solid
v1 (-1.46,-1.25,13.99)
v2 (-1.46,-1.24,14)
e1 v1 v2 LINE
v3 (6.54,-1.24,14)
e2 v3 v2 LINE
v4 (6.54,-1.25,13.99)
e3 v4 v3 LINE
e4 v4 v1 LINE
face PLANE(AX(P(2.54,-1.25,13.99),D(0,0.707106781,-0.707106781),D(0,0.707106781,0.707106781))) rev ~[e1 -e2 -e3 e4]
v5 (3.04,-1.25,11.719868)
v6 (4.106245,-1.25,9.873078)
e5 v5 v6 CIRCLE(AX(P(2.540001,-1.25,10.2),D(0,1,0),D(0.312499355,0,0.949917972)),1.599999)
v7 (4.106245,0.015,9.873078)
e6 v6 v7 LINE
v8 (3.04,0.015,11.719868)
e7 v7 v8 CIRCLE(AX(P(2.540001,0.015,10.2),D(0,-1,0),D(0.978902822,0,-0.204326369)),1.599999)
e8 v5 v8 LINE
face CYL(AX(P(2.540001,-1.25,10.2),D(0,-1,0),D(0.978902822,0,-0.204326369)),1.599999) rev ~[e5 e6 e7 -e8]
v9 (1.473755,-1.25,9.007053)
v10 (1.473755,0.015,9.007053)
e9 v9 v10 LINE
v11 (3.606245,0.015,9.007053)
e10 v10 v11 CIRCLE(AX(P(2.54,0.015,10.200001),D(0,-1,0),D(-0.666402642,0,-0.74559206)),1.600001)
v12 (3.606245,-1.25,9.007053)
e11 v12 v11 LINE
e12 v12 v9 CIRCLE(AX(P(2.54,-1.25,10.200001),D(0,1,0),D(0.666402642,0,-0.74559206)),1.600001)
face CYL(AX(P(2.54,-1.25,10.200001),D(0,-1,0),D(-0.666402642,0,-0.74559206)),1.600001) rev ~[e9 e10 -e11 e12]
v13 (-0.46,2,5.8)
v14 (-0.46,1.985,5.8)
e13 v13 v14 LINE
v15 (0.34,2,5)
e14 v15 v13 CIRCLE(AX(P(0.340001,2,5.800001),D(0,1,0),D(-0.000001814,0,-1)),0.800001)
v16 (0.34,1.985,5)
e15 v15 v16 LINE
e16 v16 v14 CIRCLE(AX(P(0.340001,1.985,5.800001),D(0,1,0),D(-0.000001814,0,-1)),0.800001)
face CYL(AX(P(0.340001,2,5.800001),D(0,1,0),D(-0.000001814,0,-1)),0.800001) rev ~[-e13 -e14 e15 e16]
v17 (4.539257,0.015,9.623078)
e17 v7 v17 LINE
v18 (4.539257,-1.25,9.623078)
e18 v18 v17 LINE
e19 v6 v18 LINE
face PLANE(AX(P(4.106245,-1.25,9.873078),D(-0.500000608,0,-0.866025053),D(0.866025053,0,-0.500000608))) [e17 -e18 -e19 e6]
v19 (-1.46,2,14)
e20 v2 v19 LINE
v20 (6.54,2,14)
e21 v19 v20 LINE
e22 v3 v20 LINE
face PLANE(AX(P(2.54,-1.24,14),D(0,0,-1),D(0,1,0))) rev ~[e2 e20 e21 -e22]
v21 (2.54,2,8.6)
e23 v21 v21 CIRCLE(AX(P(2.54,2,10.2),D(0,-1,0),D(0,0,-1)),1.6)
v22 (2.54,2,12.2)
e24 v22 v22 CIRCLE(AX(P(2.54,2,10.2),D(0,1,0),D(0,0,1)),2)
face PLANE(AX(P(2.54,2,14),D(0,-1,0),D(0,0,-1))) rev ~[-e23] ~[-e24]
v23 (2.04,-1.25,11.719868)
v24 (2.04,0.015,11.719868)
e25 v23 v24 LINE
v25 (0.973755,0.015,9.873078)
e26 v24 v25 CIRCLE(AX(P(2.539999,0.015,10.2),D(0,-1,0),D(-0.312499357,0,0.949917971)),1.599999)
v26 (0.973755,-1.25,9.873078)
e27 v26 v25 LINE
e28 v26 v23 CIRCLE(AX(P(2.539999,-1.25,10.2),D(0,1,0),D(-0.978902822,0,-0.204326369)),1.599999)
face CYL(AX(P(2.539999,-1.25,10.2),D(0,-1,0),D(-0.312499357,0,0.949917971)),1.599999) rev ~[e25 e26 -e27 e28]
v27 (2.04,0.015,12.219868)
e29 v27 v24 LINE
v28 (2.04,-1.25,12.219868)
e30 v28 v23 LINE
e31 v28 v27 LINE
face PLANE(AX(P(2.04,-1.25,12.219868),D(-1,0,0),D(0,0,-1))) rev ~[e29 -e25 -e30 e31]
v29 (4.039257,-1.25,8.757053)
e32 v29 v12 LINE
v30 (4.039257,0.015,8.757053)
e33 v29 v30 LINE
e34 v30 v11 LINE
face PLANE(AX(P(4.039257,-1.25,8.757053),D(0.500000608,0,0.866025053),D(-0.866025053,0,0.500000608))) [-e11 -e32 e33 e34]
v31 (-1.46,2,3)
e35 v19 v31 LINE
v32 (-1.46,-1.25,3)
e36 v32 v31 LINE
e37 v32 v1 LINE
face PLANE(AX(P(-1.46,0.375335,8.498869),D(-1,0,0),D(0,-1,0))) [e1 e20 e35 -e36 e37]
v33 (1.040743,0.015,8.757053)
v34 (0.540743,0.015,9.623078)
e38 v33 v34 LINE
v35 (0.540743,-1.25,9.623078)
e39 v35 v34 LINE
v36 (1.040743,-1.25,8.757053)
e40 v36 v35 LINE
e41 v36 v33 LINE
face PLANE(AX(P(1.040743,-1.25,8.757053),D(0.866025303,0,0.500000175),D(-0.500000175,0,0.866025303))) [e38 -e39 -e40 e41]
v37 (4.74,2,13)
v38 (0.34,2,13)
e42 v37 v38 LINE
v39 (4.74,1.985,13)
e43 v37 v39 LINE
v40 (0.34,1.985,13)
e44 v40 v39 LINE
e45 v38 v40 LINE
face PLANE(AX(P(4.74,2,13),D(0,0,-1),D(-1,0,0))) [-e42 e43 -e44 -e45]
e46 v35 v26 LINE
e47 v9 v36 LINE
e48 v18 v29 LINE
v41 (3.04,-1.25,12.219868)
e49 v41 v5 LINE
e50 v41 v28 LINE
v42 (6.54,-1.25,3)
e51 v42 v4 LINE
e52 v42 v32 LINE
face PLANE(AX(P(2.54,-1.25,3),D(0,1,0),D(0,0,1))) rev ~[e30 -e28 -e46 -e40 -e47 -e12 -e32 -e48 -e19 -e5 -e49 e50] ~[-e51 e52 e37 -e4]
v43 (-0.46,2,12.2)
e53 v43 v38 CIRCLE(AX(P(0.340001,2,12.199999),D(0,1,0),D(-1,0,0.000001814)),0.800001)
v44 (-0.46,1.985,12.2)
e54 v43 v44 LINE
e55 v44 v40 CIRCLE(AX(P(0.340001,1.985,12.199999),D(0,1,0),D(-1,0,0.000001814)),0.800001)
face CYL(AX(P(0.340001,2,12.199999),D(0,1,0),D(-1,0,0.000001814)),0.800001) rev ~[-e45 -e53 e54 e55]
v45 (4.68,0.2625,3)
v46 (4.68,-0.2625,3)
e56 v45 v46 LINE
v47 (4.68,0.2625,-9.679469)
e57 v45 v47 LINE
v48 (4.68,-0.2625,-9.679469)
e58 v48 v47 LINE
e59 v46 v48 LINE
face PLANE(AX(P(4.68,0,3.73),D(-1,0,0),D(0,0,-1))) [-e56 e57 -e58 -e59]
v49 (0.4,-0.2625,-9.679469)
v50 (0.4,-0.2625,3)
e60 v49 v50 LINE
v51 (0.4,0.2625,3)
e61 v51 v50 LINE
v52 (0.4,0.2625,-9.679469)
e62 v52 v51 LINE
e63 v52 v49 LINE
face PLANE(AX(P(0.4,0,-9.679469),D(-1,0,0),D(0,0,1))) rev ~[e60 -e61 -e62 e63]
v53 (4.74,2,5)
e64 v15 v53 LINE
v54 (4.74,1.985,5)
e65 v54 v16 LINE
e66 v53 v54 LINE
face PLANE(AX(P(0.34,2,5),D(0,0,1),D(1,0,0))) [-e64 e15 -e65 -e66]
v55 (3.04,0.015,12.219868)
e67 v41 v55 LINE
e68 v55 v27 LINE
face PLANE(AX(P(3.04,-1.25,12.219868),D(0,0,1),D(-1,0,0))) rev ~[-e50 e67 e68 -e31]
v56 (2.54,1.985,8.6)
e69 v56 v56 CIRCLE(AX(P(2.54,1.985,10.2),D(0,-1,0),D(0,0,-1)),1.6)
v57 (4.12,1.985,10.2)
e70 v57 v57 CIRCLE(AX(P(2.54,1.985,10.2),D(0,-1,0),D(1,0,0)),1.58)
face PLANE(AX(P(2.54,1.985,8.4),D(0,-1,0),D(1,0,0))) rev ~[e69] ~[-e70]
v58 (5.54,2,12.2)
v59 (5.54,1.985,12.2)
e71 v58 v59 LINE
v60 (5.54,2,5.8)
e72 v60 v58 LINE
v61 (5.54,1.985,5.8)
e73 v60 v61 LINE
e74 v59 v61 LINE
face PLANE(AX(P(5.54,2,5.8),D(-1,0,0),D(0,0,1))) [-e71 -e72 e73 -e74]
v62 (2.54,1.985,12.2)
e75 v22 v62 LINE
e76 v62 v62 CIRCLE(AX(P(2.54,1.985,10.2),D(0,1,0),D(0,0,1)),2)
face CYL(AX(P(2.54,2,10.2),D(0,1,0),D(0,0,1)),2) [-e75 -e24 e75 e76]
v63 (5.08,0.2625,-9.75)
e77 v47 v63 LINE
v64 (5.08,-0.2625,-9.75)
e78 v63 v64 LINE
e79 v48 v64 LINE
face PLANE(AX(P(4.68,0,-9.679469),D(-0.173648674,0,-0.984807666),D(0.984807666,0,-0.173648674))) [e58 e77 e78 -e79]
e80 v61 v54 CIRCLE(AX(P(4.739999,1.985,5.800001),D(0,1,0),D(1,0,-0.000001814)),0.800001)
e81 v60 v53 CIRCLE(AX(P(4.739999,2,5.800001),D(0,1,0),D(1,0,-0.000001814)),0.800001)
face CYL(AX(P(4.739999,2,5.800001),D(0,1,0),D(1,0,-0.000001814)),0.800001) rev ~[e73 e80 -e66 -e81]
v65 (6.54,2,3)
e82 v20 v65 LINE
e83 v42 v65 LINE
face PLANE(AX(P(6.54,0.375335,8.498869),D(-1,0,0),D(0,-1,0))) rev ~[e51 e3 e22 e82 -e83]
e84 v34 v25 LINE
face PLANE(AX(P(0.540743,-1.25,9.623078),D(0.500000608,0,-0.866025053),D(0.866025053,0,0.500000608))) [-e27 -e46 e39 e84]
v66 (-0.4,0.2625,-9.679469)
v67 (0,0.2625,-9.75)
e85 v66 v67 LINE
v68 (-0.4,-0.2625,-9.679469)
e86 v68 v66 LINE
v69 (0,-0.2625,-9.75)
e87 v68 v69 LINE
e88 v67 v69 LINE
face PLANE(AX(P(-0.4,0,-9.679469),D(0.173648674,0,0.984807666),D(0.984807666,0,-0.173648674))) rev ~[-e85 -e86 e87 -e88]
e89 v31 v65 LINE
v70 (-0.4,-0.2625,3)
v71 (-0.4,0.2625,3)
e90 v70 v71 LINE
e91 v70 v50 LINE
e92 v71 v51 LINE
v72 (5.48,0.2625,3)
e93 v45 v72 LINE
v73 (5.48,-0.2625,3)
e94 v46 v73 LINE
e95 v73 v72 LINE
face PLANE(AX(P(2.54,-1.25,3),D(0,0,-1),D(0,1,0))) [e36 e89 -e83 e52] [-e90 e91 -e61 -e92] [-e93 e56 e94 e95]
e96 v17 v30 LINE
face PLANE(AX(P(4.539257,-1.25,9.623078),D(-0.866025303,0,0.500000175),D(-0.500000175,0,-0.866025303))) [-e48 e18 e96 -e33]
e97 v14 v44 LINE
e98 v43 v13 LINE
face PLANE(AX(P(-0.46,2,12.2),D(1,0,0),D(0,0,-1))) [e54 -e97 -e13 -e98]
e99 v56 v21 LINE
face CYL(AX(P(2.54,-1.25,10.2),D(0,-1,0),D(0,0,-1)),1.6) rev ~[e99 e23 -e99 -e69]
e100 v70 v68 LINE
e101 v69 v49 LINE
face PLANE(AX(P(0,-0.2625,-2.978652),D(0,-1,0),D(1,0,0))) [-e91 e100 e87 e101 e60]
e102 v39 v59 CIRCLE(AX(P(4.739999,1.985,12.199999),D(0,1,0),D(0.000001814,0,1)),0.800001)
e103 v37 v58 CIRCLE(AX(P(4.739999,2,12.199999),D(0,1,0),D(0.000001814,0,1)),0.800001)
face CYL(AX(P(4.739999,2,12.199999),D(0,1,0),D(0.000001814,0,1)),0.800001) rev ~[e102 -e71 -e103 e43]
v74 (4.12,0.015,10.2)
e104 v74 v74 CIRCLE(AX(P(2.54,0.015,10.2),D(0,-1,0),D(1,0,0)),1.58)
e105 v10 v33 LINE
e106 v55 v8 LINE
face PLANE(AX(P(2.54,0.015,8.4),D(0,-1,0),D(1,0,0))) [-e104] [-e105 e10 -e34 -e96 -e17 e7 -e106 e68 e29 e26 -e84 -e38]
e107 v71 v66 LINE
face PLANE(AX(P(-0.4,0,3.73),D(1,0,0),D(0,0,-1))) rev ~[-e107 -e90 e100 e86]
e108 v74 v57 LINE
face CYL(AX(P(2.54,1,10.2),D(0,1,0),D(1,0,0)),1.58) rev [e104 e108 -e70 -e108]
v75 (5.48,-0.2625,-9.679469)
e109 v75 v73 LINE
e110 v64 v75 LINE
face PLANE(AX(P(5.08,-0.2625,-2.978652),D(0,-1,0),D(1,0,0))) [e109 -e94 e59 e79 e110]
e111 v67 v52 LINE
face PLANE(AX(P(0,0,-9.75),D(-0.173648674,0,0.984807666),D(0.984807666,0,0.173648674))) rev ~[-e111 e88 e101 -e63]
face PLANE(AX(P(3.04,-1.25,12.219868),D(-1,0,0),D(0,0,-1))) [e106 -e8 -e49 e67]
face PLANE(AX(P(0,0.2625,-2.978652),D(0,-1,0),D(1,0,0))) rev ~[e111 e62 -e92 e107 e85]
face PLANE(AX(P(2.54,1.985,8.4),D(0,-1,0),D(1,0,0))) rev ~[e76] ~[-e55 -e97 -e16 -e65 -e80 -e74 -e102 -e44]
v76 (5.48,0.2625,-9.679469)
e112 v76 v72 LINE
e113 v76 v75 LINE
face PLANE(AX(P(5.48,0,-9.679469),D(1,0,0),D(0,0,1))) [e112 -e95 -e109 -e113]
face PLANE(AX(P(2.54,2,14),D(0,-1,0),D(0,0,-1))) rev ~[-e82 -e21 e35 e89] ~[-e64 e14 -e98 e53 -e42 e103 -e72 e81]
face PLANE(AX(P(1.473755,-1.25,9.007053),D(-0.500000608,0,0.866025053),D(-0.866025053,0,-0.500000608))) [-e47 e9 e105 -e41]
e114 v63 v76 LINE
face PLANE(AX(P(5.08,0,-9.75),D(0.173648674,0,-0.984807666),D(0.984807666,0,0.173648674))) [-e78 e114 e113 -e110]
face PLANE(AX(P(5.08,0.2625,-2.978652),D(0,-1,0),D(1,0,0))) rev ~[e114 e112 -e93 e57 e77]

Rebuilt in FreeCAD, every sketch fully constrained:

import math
import FreeCAD as App
import Part
import Sketcher

V = App.Vector
Q = App.Units.Quantity


def add_polygon(sketch, points):
    """Adds a closed chain of lines whose ends are joined by coincident constraints."""
    first, n = sketch.GeometryCount, len(points)
    for a, b in zip(points, points[1:] + points[:1]):
        sketch.addGeometry(Part.LineSegment(App.Vector(*a, 0), App.Vector(*b, 0)), False)
    for i in range(n):
        sketch.addConstraint(Sketcher.Constraint("Coincident", first + i, 2, first + (i + 1) % n, 1))

doc = App.newDocument("Part")
body = doc.addObject("PartDesign::Body", "Body")

# Sketch on XZ plane
sketch1 = body.newObject("Sketcher::SketchObject", "Sketch")
sketch1.AttachmentSupport = (doc.getObject("XZ_Plane"), [""])
sketch1.MapMode = "FlatFace"
sketch1.AttachmentOffset = App.Placement(V(0, 0, -1), App.Rotation())
add_polygon(sketch1, [(-1.2, 13.6), (-1.2, 3.2), (6.2, 3.2), (6.2, 13.6)])  # lines 0-3
sketch1.addGeometry(Part.Circle(V(2.5, 10.2, 0), V(0, 0, 1), 1.6), False)  # 4
sketch1.addConstraint(Sketcher.Constraint("Vertical", 0))
sketch1.addConstraint(Sketcher.Constraint("Horizontal", 1))
sketch1.addConstraint(Sketcher.Constraint("Vertical", 2))
sketch1.addConstraint(Sketcher.Constraint("Horizontal", 3))
sketch1.addConstraint(Sketcher.Constraint("Diameter", 4, 3.16))
sketch1.addConstraint(Sketcher.Constraint("DistanceX", 1, 1, 1, 2, 7.4))
sketch1.addConstraint(Sketcher.Constraint("DistanceY", 0, 2, 0, 1, 10.4))
sketch1.addConstraint(Sketcher.Constraint("DistanceY", 0, 2, 4, 3, 7.0))
sketch1.addConstraint(Sketcher.Constraint("DistanceY", -1, 1, 4, 3, 10.2))
sketch1.addConstraint(Sketcher.Constraint("DistanceX", 0, 2, 4, 3, 3.7))
sketch1.addConstraint(Sketcher.Constraint("DistanceX", -1, 1, 4, 3, 2.54))
pad1 = body.newObject("PartDesign::Pad", "Pad")
pad1.Profile = sketch1
pad1.Length = 1.97
pad1.Midplane = True
body2 = doc.addObject("PartDesign::Body", "Body001")

# Sketch on YZ plane
sketch2 = body2.newObject("Sketcher::SketchObject", "Sketch001")
sketch2.AttachmentSupport = (doc.getObject("YZ_Plane001"), [""])
sketch2.MapMode = "FlatFace"
sketch2.AttachmentOffset = App.Placement(V(0, 0, 2.54), App.Rotation())
add_polygon(sketch2, [(-1.25, 3), (2, 3), (2, 14), (-1.24, 14), (-1.25, 13.99)])  # lines 0-4
sketch2.addConstraint(Sketcher.Constraint("Horizontal", 0))
sketch2.addConstraint(Sketcher.Constraint("Vertical", 1))
sketch2.addConstraint(Sketcher.Constraint("Horizontal", 2))
sketch2.addConstraint(Sketcher.Constraint("Vertical", 4))
sketch2.addConstraint(Sketcher.Constraint("DistanceY", 1, 1, 1, 2, 11.0))
sketch2.addConstraint(Sketcher.Constraint("Angle", 3, Q("-135 deg")))
sketch2.addConstraint(Sketcher.Constraint("DistanceX", -1, 1, 0, 2, 2.0))
sketch2.addConstraint(Sketcher.Constraint("DistanceY", -1, 1, 0, 2, 3.0))
sketch2.addConstraint(Sketcher.Constraint("DistanceX", 0, 1, 0, 2, 3.25))
sketch2.addConstraint(Sketcher.Constraint("DistanceX", 2, 2, 2, 1, 3.24))
pad2 = body2.newObject("PartDesign::Pad", "Pad001")
pad2.Profile = sketch2
pad2.Length = 8
pad2.Midplane = True

# Sketch on XZ plane
sketch3 = body2.newObject("Sketcher::SketchObject", "Sketch002")
sketch3.AttachmentSupport = (doc.getObject("XZ_Plane001"), [""])
sketch3.MapMode = "FlatFace"
sketch3.AttachmentOffset = App.Placement(V(0, 0, 1.25), App.Rotation())
sketch3.addGeometry(Part.LineSegment(V(3.04, 12.22, 0), V(2.04, 12.22, 0)), False)
sketch3.addGeometry(Part.LineSegment(V(2.04, 12.22, 0), V(2.04, 11.72, 0)), False)
sketch3.addGeometry(Part.ArcOfCircle(Part.Circle(V(2.54, 10.2, 0), V(0, 0, 1), 1.6), math.radians(108), math.radians(192)), False)
sketch3.addGeometry(Part.LineSegment(V(0.97, 9.87, 0), V(0.54, 9.62, 0)), False)
sketch3.addGeometry(Part.LineSegment(V(0.54, 9.62, 0), V(1.04, 8.76, 0)), False)
sketch3.addGeometry(Part.LineSegment(V(1.04, 8.76, 0), V(1.47, 9.01, 0)), False)
sketch3.addGeometry(Part.ArcOfCircle(Part.Circle(V(2.54, 10.2, 0), V(0, 0, 1), 1.6), math.radians(-132), math.radians(-48)), False)
sketch3.addGeometry(Part.LineSegment(V(3.61, 9.01, 0), V(4.04, 8.76, 0)), False)
sketch3.addGeometry(Part.LineSegment(V(4.04, 8.76, 0), V(4.54, 9.62, 0)), False)
sketch3.addGeometry(Part.LineSegment(V(4.54, 9.62, 0), V(4.11, 9.87, 0)), False)
sketch3.addGeometry(Part.ArcOfCircle(Part.Circle(V(2.54, 10.2, 0), V(0, 0, 1), 1.6), math.radians(-12), math.radians(72)), False)
sketch3.addGeometry(Part.LineSegment(V(3.04, 11.72, 0), V(3.04, 12.22, 0)), False)
sketch3.addConstraint(Sketcher.Constraint("Coincident", 0, 2, 1, 1))
sketch3.addConstraint(Sketcher.Constraint("Coincident", 1, 2, 2, 1))
sketch3.addConstraint(Sketcher.Constraint("Coincident", 2, 2, 3, 1))
sketch3.addConstraint(Sketcher.Constraint("Coincident", 3, 2, 4, 1))
sketch3.addConstraint(Sketcher.Constraint("Coincident", 4, 2, 5, 1))
sketch3.addConstraint(Sketcher.Constraint("Coincident", 5, 2, 6, 1))
sketch3.addConstraint(Sketcher.Constraint("Coincident", 6, 2, 7, 1))
sketch3.addConstraint(Sketcher.Constraint("Coincident", 7, 2, 8, 1))
sketch3.addConstraint(Sketcher.Constraint("Coincident", 8, 2, 9, 1))
sketch3.addConstraint(Sketcher.Constraint("Coincident", 9, 2, 10, 1))
sketch3.addConstraint(Sketcher.Constraint("Coincident", 10, 2, 11, 1))
sketch3.addConstraint(Sketcher.Constraint("Coincident", 11, 2, 0, 1))
sketch3.addConstraint(Sketcher.Constraint("Horizontal", 0))
sketch3.addConstraint(Sketcher.Constraint("Vertical", 1))
sketch3.addConstraint(Sketcher.Constraint("Vertical", 11))
sketch3.addConstraint(Sketcher.Constraint("Coincident", 6, 3, 2, 3))
sketch3.addConstraint(Sketcher.Constraint("Coincident", 10, 3, 2, 3))
sketch3.addConstraint(Sketcher.Constraint("Equal", 2, 6))
sketch3.addConstraint(Sketcher.Constraint("Equal", 6, 10))
sketch3.addConstraint(Sketcher.Constraint("Perpendicular", 3, 4))
sketch3.addConstraint(Sketcher.Constraint("Perpendicular", 4, 5))
sketch3.addConstraint(Sketcher.Constraint("Perpendicular", 7, 8))
sketch3.addConstraint(Sketcher.Constraint("Perpendicular", 8, 9))
sketch3.addConstraint(Sketcher.Constraint("Horizontal", 5, 2, 6, 2))
sketch3.addConstraint(Sketcher.Constraint("Horizontal", 4, 2, 7, 2))
sketch3.addConstraint(Sketcher.Constraint("Horizontal", 3, 2, 8, 2))
sketch3.addConstraint(Sketcher.Constraint("Horizontal", 2, 2, 9, 2))
sketch3.addConstraint(Sketcher.Constraint("Horizontal", 1, 2, 10, 2))
sketch3.addConstraint(Sketcher.Constraint("Equal", 3, 5))
sketch3.addConstraint(Sketcher.Constraint("Radius", 2, 1.599999))
sketch3.addConstraint(Sketcher.Constraint("DistanceX", 0, 2, 0, 1, 1.0))
sketch3.addConstraint(Sketcher.Constraint("Angle", 4, Q("-59.999988 deg")))
sketch3.addConstraint(Sketcher.Constraint("Distance", 4, 1.0))
sketch3.addConstraint(Sketcher.Constraint("DistanceY", 1, 2, 1, 1, 0.5))
sketch3.addConstraint(Sketcher.Constraint("Distance", 3, 0.499999))
sketch3.addConstraint(Sketcher.Constraint("DistanceY", -1, 1, 2, 3, 10.2))
sketch3.addConstraint(Sketcher.Constraint("DistanceX", -1, 1, 2, 3, 2.539999))
pocket1 = body2.newObject("PartDesign::Pocket", "Pocket")
pocket1.Profile = sketch3
pocket1.Length = 1.35

# Sketch on XZ plane
sketch4 = body2.newObject("Sketcher::SketchObject", "Sketch003")
sketch4.AttachmentSupport = (doc.getObject("XZ_Plane001"), [""])
sketch4.MapMode = "FlatFace"
sketch4.AttachmentOffset = App.Placement(V(0, 0, 1.25), App.Rotation())
sketch4.addGeometry(Part.Circle(V(2.5, 10.2, 0), V(0, 0, 1), 1.6), False)
sketch4.addConstraint(Sketcher.Constraint("Diameter", 0, 3.2))
sketch4.addConstraint(Sketcher.Constraint("DistanceY", -1, 1, 0, 3, 10.2))
sketch4.addConstraint(Sketcher.Constraint("DistanceX", -1, 1, 0, 3, 2.54))
pocket2 = body2.newObject("PartDesign::Pocket", "Pocket001")
pocket2.Profile = sketch4
pocket2.Type = "ThroughAll"

# Sketch on XZ plane
sketch5 = body2.newObject("Sketcher::SketchObject", "Sketch004")
sketch5.AttachmentSupport = (doc.getObject("XZ_Plane001"), [""])
sketch5.MapMode = "FlatFace"
sketch5.AttachmentOffset = App.Placement(V(0, 0, -2), App.Rotation())
sketch5.addGeometry(Part.LineSegment(V(5.5, 12.2, 0), V(5.5, 5.8, 0)), False)
sketch5.addGeometry(Part.ArcOfCircle(Part.Circle(V(4.7, 5.8, 0), V(0, 0, 1), 0.8), math.radians(-90), math.radians(0)), False)
sketch5.addGeometry(Part.LineSegment(V(4.7, 5, 0), V(0.3, 5, 0)), False)
sketch5.addGeometry(Part.ArcOfCircle(Part.Circle(V(0.3, 5.8, 0), V(0, 0, 1), 0.8), math.radians(-180), math.radians(-90)), False)
sketch5.addGeometry(Part.LineSegment(V(-0.5, 5.8, 0), V(-0.5, 12.2, 0)), False)
sketch5.addGeometry(Part.ArcOfCircle(Part.Circle(V(0.3, 12.2, 0), V(0, 0, 1), 0.8), math.radians(90), math.radians(180)), False)
sketch5.addGeometry(Part.LineSegment(V(0.3, 13, 0), V(4.7, 13, 0)), False)
sketch5.addGeometry(Part.ArcOfCircle(Part.Circle(V(4.7, 12.2, 0), V(0, 0, 1), 0.8), math.radians(0), math.radians(90)), False)
sketch5.addGeometry(Part.Circle(V(2.5, 10.2, 0), V(0, 0, 1), 2), False)
sketch5.addConstraint(Sketcher.Constraint("Tangent", 0, 2, 1, 2))
sketch5.addConstraint(Sketcher.Constraint("Tangent", 1, 1, 2, 1))
sketch5.addConstraint(Sketcher.Constraint("Tangent", 2, 2, 3, 2))
sketch5.addConstraint(Sketcher.Constraint("Tangent", 3, 1, 4, 1))
sketch5.addConstraint(Sketcher.Constraint("Tangent", 4, 2, 5, 2))
sketch5.addConstraint(Sketcher.Constraint("Tangent", 5, 1, 6, 1))
sketch5.addConstraint(Sketcher.Constraint("Tangent", 6, 2, 7, 2))
sketch5.addConstraint(Sketcher.Constraint("Tangent", 7, 1, 0, 1))
sketch5.addConstraint(Sketcher.Constraint("Vertical", 0))
sketch5.addConstraint(Sketcher.Constraint("Horizontal", 2))
sketch5.addConstraint(Sketcher.Constraint("Vertical", 4))
sketch5.addConstraint(Sketcher.Constraint("Horizontal", 6))
sketch5.addConstraint(Sketcher.Constraint("Equal", 1, 3))
sketch5.addConstraint(Sketcher.Constraint("Equal", 3, 5))
sketch5.addConstraint(Sketcher.Constraint("Equal", 5, 7))
sketch5.addConstraint(Sketcher.Constraint("Diameter", 8, 4.0))
sketch5.addConstraint(Sketcher.Constraint("Radius", 1, 0.800001))
sketch5.addConstraint(Sketcher.Constraint("DistanceX", 2, 2, 2, 1, 4.4))
sketch5.addConstraint(Sketcher.Constraint("DistanceY", 0, 2, 0, 1, 6.4))
sketch5.addConstraint(Sketcher.Constraint("DistanceY", -1, 1, 1, 1, 5.0))
sketch5.addConstraint(Sketcher.Constraint("DistanceY", 8, 3, 5, 3, 1.999999))
sketch5.addConstraint(Sketcher.Constraint("DistanceX", 8, 3, 0, 2, 3.0))
sketch5.addConstraint(Sketcher.Constraint("DistanceX", -1, 1, 1, 3, 4.739999))
pocket3 = body2.newObject("PartDesign::Pocket", "Pocket002")
pocket3.Profile = sketch5
pocket3.Length = 0.02
pocket3.Reversed = True
body3 = doc.addObject("PartDesign::Body", "Body002")
body3.AllowCompound = True

# Sketch on XZ plane
sketch6 = body3.newObject("Sketcher::SketchObject", "Sketch005")
sketch6.AttachmentSupport = (doc.getObject("XZ_Plane002"), [""])
sketch6.MapMode = "FlatFace"
add_polygon(sketch6, [(-0.4, -9.68), (0, -9.75), (0.4, -9.68), (0.4, 3.73), (-0.4, 3.73)])  # lines 0-4
add_polygon(sketch6, [(4.68, -9.68), (5.08, -9.75), (5.48, -9.68), (5.48, 3.73), (4.68, 3.73)])  # lines 5-9
sketch6.addConstraint(Sketcher.Constraint("Vertical", 2))
sketch6.addConstraint(Sketcher.Constraint("Horizontal", 3))
sketch6.addConstraint(Sketcher.Constraint("Vertical", 4))
sketch6.addConstraint(Sketcher.Constraint("Vertical", 7))
sketch6.addConstraint(Sketcher.Constraint("Horizontal", 8))
sketch6.addConstraint(Sketcher.Constraint("Vertical", 9))
sketch6.addConstraint(Sketcher.Constraint("Symmetric", 1, 2, 4, 2, -2))
sketch6.addConstraint(Sketcher.Constraint("PointOnObject", 0, 2, -2))
sketch6.addConstraint(Sketcher.Constraint("Parallel", 0, 5))
sketch6.addConstraint(Sketcher.Constraint("Parallel", 1, 6))
sketch6.addConstraint(Sketcher.Constraint("Horizontal", 0, 2, 5, 2))
sketch6.addConstraint(Sketcher.Constraint("Horizontal", 4, 2, 6, 2))
sketch6.addConstraint(Sketcher.Constraint("Horizontal", 3, 2, 7, 2))
sketch6.addConstraint(Sketcher.Constraint("Horizontal", 6, 2, 9, 2))
sketch6.addConstraint(Sketcher.Constraint("DistanceX", 3, 2, 3, 1, 0.8))
sketch6.addConstraint(Sketcher.Constraint("DistanceY", 0, 2, -1, 1, 9.75))
sketch6.addConstraint(Sketcher.Constraint("DistanceY", -1, 1, 2, 2, 3.73))
sketch6.addConstraint(Sketcher.Constraint("DistanceX", -1, 1, 5, 2, 5.08))
sketch6.addConstraint(Sketcher.Constraint("DistanceY", 2, 1, 2, 2, 13.409469))
pad3 = body3.newObject("PartDesign::Pad", "Pad002")
pad3.Profile = sketch6
pad3.Length = 0.525
pad3.Midplane = True
doc.recompute()

boolean = body3.newObject("PartDesign::Boolean", "Boolean")
boolean.Type = "Fuse"
boolean.addObjects([body])
doc.recompute()

boolean2 = body3.newObject("PartDesign::Boolean", "Boolean001")
boolean2.Type = "Fuse"
boolean2.addObjects([body2])

doc.recompute()
